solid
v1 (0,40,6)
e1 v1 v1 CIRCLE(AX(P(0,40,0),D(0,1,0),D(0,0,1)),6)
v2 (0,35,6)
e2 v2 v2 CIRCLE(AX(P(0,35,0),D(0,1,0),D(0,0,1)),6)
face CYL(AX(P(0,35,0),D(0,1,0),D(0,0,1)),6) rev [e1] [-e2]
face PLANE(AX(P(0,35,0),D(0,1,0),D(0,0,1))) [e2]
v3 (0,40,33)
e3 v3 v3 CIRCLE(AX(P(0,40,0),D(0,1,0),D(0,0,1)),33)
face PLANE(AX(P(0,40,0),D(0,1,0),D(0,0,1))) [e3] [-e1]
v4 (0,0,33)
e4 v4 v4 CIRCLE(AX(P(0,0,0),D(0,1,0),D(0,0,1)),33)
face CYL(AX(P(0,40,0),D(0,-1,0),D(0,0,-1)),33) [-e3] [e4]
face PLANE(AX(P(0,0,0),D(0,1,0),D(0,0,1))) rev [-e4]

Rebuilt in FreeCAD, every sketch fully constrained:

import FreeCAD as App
import Part
import Sketcher

V = App.Vector
Q = App.Units.Quantity

doc = App.newDocument("Part")
body = doc.addObject("PartDesign::Body", "Body")

# Sketch on XZ plane
sketch1 = body.newObject("Sketcher::SketchObject", "Sketch")
sketch1.AttachmentSupport = (doc.getObject("XZ_Plane"), [""])
sketch1.MapMode = "FlatFace"
sketch1.addGeometry(Part.Circle(V(0, 0, 0), V(0, 0, 1), 33), False)
sketch1.addConstraint([
    Sketcher.Constraint("Coincident", 0, 3, -1, 1),
    Sketcher.Constraint("Diameter", 0, Q("66 mm")),
])
pad1 = body.newObject("PartDesign::Pad", "Pad")
pad1.Profile = sketch1
pad1.Length = 40
pad1.Reversed = True

# Sketch on XZ plane
sketch2 = body.newObject("Sketcher::SketchObject", "Sketch001")
sketch2.AttachmentSupport = (doc.getObject("XZ_Plane"), [""])
sketch2.MapMode = "FlatFace"
sketch2.AttachmentOffset = App.Placement(V(0, 0, -40), App.Rotation())
sketch2.addGeometry(Part.Circle(V(0, 0, 0), V(0, 0, 1), 6), False)
sketch2.addConstraint([
    Sketcher.Constraint("Coincident", 0, 3, -1, 1),
    Sketcher.Constraint("Diameter", 0, Q("12 mm")),
])
pocket1 = body.newObject("PartDesign::Pocket", "Pocket")
pocket1.Profile = sketch2
pocket1.Length = 5
pocket1.Reversed = True

doc.recompute()
